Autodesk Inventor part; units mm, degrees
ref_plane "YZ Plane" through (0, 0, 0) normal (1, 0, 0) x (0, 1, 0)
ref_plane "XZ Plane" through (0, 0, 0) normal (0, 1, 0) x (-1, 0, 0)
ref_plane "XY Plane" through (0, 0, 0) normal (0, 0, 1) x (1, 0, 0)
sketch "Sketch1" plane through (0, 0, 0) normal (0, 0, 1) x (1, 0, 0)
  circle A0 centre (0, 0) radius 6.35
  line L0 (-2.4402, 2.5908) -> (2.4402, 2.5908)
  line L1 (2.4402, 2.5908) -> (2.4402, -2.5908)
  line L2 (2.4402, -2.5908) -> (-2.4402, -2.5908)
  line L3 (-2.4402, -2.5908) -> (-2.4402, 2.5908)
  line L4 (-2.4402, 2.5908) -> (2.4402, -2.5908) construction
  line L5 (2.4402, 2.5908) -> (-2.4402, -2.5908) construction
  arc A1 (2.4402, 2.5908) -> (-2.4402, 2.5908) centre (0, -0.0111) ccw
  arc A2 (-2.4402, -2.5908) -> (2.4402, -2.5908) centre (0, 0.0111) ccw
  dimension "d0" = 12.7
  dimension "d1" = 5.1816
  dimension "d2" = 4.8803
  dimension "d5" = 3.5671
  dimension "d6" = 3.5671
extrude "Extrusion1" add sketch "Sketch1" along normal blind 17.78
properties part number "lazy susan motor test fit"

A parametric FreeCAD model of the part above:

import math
import FreeCAD as App
import Part
import Sketcher
from FreeCAD import Vector
Q = App.Units.Quantity

doc = App.newDocument("Part")
body = doc.addObject("PartDesign::Body", "Body")

sketch1 = body.newObject("Sketcher::SketchObject", "Sketch")
sketch1.AttachmentSupport = (doc.getObject("XY_Plane"), [""])
sketch1.MapMode = "FlatFace"
sketch1.addGeometry([
    Part.Circle(Vector(0, 0, 0), Vector(0, 0, 1), 6.35),
    Part.LineSegment(Vector(-2.4402, -2.5908, 0), Vector(-2.4402, 2.5908, 0)),
    Part.ArcOfCircle(Part.Circle(Vector(0, -0.0111, 0), Vector(0, 0, 1), 3.567136), math.radians(46.836844), math.radians(133.163156)),
    Part.LineSegment(Vector(2.4402, 2.5908, 0), Vector(2.4402, -2.5908, 0)),
    Part.ArcOfCircle(Part.Circle(Vector(0, 0.0111, 0), Vector(0, 0, 1), 3.567136), math.radians(-133.163156), math.radians(-46.836844)),
], False)
sketch1.addConstraint([
    Sketcher.Constraint("Coincident", 1, 2, 2, 2),
    Sketcher.Constraint("Coincident", 2, 1, 3, 1),
    Sketcher.Constraint("Coincident", 3, 2, 4, 2),
    Sketcher.Constraint("Coincident", 4, 1, 1, 1),
    Sketcher.Constraint("Vertical", 1),
    Sketcher.Constraint("Vertical", 3),
    Sketcher.Constraint("Coincident", 0, 3, -1, 1),
    Sketcher.Constraint("Equal", 2, 4),
    Sketcher.Constraint("Symmetric", 2, 3, 4, 3, -1, 1),
    Sketcher.Constraint("Symmetric", 1, 2, 2, 1, -2),
    Sketcher.Constraint("Diameter", 0, Q("0.5 in")),
    Sketcher.Constraint("DistanceY", 1, 1, 1, 2, Q("0.204 in")),
    Sketcher.Constraint("Radius", 2, Q("3.5671 mm")),
    Sketcher.Constraint("DistanceX", 1, 2, 2, 1, Q("4.8804 mm")),
])
pad1 = body.newObject("PartDesign::Pad", "Pad")
pad1.Profile = sketch1
pad1.Length = Q("0.7 in")

doc.recompute()
